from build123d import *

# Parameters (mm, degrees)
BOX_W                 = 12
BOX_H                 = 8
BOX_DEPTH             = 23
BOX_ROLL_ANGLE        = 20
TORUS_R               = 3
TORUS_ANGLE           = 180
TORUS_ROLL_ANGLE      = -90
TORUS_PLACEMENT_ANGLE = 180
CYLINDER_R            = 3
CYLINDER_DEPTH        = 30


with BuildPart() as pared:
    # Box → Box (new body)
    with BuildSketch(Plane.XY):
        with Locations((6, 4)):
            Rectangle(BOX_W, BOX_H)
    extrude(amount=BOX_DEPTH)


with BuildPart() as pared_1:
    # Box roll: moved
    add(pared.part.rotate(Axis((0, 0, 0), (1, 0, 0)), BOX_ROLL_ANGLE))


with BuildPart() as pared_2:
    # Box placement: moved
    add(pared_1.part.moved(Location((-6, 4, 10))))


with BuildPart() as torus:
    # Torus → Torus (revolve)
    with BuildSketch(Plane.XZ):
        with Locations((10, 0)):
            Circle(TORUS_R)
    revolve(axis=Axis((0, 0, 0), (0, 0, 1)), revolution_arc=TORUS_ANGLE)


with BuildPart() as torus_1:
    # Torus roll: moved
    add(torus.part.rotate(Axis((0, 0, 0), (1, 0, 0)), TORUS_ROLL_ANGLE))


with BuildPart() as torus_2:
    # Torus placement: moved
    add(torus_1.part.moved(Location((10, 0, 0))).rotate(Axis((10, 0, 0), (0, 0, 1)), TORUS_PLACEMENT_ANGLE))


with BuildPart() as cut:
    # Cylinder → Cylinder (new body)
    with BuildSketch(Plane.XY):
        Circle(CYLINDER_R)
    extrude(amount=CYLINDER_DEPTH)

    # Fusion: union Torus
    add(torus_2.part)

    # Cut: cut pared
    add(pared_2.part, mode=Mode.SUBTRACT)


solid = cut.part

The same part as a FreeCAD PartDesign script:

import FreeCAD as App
import Part
import Sketcher

doc = App.newDocument("Part")
body = doc.addObject("PartDesign::Body", "Body")

sketch1 = body.newObject("Sketcher::SketchObject", "Sketch")
sketch1.AttachmentSupport = (doc.getObject("XY_Plane"), [""])
sketch1.MapMode = "FlatFace"
sketch1.addGeometry(Part.LineSegment(App.Vector(0, 8, 0), App.Vector(0, 0, 0)), False)
sketch1.addGeometry(Part.LineSegment(App.Vector(0, 0, 0), App.Vector(12, 0, 0)), False)
sketch1.addGeometry(Part.LineSegment(App.Vector(12, 0, 0), App.Vector(12, 8, 0)), False)
sketch1.addGeometry(Part.LineSegment(App.Vector(12, 8, 0), App.Vector(0, 8, 0)), False)
sketch1.addConstraint(Sketcher.Constraint("Coincident", 0, 2, 1, 1))
sketch1.addConstraint(Sketcher.Constraint("Coincident", 1, 2, 2, 1))
sketch1.addConstraint(Sketcher.Constraint("Coincident", 2, 2, 3, 1))
sketch1.addConstraint(Sketcher.Constraint("Coincident", 3, 2, 0, 1))
sketch1.addConstraint(Sketcher.Constraint("Vertical", 0))
sketch1.addConstraint(Sketcher.Constraint("Horizontal", 1))
sketch1.addConstraint(Sketcher.Constraint("Vertical", 2))
sketch1.addConstraint(Sketcher.Constraint("Horizontal", 3))
sketch1.addConstraint(Sketcher.Constraint("Coincident", 0, 2, -1, 1))
sketch1.addConstraint(Sketcher.Constraint("DistanceX", 1, 1, 1, 2, 12.0))
sketch1.addConstraint(Sketcher.Constraint("DistanceY", 0, 2, 0, 1, 8.0))
pad1 = body.newObject("PartDesign::Pad", "Pad")
pad1.Profile = sketch1
pad1.Length = 23
body2 = doc.addObject("PartDesign::Body", "Body001")
doc.recompute()

body.Placement = App.Placement(App.Vector(0, 0, 0), App.Rotation(App.Vector(1, 0, 0), 20))
boolean = body2.newObject("PartDesign::Boolean", "Boolean")
boolean.Type = "Fuse"
boolean.addObjects([body])
body3 = doc.addObject("PartDesign::Body", "Body002")
doc.recompute()

body2.Placement = App.Placement(App.Vector(-6, 4, 10), App.Rotation(App.Vector(0, 0, 1), 0))
boolean2 = body3.newObject("PartDesign::Boolean", "Boolean001")
boolean2.Type = "Fuse"
boolean2.addObjects([body2])
body4 = doc.addObject("PartDesign::Body", "Body003")

sketch2 = body4.newObject("Sketcher::SketchObject", "Sketch001")
sketch2.AttachmentSupport = (doc.getObject("XZ_Plane003"), [""])
sketch2.MapMode = "FlatFace"
sketch2.addGeometry(Part.Circle(App.Vector(10, 0, 0), App.Vector(0, 0, 1), 3), False)
sketch2.addConstraint(Sketcher.Constraint("PointOnObject", 0, 3, -1))
sketch2.addConstraint(Sketcher.Constraint("Diameter", 0, 6.0))
sketch2.addConstraint(Sketcher.Constraint("DistanceX", -1, 1, 0, 3, 10.0))
revolution = body4.newObject("PartDesign::Revolution", "Revolution")
revolution.Profile = sketch2
revolution.ReferenceAxis = (sketch2, ["V_Axis"])
revolution.Angle = 180
body5 = doc.addObject("PartDesign::Body", "Body004")
doc.recompute()

body4.Placement = App.Placement(App.Vector(0, 0, 0), App.Rotation(App.Vector(1, 0, 0), 270))
boolean3 = body5.newObject("PartDesign::Boolean", "Boolean002")
boolean3.Type = "Fuse"
boolean3.addObjects([body4])
body6 = doc.addObject("PartDesign::Body", "Body005")
doc.recompute()

body5.Placement = App.Placement(App.Vector(10, 0, 0), App.Rotation(App.Vector(0, 0, 1), 180))
boolean4 = body6.newObject("PartDesign::Boolean", "Boolean003")
boolean4.Type = "Fuse"
boolean4.addObjects([body5])
body7 = doc.addObject("PartDesign::Body", "Body006")

sketch3 = body7.newObject("Sketcher::SketchObject", "Sketch002")
sketch3.AttachmentSupport = (doc.getObject("XY_Plane006"), [""])
sketch3.MapMode = "FlatFace"
sketch3.addGeometry(Part.Circle(App.Vector(0, 0, 0), App.Vector(0, 0, 1), 3), False)
sketch3.addConstraint(Sketcher.Constraint("Coincident", 0, 3, -1, 1))
sketch3.addConstraint(Sketcher.Constraint("Diameter", 0, 6.0))
pad2 = body7.newObject("PartDesign::Pad", "Pad001")
pad2.Profile = sketch3
pad2.Length = 30
doc.recompute()

boolean5 = body7.newObject("PartDesign::Boolean", "Boolean004")
boolean5.Type = "Fuse"
boolean5.addObjects([body6])
doc.recompute()

boolean6 = body7.newObject("PartDesign::Boolean", "Boolean005")
boolean6.Type = "Cut"
boolean6.addObjects([body3])

doc.recompute()
